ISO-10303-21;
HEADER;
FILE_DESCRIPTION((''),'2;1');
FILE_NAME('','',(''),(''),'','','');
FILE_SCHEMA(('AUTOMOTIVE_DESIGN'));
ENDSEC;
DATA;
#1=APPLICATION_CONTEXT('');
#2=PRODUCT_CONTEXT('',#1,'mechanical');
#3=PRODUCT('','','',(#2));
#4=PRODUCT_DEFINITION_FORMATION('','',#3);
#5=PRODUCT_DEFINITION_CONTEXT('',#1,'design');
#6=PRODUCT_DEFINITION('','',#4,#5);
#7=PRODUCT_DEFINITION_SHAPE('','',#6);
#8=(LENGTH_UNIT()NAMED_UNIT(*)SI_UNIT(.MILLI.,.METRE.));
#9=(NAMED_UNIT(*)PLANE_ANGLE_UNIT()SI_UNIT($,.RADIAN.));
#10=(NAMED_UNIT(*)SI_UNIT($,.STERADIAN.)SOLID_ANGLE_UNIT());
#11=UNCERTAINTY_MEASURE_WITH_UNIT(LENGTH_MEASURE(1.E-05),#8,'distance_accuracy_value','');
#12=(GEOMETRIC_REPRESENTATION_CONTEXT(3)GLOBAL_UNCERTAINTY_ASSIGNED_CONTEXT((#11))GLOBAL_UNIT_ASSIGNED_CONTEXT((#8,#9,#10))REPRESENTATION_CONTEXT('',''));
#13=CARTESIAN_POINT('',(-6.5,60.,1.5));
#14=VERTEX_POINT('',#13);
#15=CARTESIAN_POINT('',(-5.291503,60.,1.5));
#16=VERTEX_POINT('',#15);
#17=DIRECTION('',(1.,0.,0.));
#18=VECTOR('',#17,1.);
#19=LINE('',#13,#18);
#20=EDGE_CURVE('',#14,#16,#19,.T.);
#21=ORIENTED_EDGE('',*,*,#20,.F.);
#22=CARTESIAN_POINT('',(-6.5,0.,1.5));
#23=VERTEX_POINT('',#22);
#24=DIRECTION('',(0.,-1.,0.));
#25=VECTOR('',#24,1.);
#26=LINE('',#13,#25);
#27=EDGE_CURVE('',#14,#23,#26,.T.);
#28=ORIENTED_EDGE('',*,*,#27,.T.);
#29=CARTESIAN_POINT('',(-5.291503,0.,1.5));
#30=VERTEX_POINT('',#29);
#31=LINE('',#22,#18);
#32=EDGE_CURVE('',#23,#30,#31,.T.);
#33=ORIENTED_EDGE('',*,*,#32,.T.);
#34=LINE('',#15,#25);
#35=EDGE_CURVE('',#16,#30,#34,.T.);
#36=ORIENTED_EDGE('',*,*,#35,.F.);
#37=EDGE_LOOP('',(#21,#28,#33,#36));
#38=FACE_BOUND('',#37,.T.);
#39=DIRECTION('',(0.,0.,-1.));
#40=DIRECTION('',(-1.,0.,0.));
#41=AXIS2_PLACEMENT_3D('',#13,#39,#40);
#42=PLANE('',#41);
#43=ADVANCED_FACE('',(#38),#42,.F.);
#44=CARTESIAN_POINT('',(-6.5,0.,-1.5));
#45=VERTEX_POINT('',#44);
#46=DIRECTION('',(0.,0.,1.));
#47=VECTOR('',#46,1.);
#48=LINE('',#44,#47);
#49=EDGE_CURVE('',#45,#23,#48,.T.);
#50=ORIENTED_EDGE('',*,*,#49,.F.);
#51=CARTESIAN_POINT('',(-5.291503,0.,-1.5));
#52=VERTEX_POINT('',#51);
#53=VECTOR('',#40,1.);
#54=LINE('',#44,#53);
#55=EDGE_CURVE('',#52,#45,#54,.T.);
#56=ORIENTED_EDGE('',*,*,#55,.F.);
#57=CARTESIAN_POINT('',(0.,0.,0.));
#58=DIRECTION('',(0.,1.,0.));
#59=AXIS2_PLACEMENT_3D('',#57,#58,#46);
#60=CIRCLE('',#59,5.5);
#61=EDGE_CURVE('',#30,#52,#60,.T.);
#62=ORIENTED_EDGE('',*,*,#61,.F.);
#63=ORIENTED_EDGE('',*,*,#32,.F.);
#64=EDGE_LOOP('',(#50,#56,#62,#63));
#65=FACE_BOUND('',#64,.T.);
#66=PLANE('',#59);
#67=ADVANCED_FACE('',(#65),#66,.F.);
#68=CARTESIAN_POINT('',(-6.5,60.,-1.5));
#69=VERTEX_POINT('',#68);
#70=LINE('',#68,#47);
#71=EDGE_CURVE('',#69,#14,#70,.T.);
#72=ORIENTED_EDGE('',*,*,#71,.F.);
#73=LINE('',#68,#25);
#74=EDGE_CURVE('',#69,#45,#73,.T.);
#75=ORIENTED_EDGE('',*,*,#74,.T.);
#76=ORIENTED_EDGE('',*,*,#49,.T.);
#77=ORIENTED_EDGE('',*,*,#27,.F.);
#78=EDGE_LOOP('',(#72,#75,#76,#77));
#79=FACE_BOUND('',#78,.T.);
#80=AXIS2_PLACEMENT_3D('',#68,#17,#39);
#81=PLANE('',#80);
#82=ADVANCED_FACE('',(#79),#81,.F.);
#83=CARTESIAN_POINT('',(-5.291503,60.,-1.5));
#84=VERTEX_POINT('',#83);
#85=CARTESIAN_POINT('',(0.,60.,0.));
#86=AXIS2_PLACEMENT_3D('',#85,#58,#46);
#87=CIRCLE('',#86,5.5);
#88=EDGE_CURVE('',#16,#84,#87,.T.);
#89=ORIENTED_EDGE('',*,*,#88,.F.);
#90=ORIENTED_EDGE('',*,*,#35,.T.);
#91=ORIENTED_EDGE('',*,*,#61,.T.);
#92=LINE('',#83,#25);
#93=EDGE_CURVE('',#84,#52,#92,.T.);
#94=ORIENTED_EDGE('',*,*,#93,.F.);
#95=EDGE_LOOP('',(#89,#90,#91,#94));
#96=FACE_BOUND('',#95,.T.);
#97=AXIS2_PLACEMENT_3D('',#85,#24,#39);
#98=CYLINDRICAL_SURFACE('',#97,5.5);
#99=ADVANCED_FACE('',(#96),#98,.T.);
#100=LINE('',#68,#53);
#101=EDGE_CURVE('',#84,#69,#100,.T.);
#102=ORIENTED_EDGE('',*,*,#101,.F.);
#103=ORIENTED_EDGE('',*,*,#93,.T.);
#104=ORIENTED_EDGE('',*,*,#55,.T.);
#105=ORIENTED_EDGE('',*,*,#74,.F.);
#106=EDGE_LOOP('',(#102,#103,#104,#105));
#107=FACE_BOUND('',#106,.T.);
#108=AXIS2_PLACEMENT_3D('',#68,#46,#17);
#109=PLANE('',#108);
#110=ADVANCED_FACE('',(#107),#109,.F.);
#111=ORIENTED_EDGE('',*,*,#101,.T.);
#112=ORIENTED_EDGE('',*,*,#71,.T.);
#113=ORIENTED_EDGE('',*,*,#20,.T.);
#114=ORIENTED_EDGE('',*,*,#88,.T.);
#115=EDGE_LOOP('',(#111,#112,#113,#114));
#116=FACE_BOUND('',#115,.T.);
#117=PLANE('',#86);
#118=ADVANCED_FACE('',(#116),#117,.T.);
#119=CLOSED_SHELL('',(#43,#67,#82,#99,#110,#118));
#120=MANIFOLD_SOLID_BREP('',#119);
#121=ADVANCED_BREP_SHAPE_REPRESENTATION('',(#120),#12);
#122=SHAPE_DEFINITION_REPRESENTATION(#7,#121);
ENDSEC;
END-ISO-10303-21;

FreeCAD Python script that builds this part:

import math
import FreeCAD as App
import Part
import Sketcher
from FreeCAD import Vector
Q = App.Units.Quantity

doc = App.newDocument("Part")
body = doc.addObject("PartDesign::Body", "Body")

# Sketch on XZ plane
sketch1 = body.newObject("Sketcher::SketchObject", "Sketch")
sketch1.AttachmentSupport = (doc.getObject("XZ_Plane"), [""])
sketch1.MapMode = "FlatFace"
sketch1.addGeometry(Part.LineSegment(Vector(-5.3, -1.5, 0), Vector(-6.5, -1.5, 0)), False)
sketch1.addGeometry(Part.LineSegment(Vector(-6.5, -1.5, 0), Vector(-6.5, 1.5, 0)), False)
sketch1.addGeometry(Part.LineSegment(Vector(-6.5, 1.5, 0), Vector(-5.3, 1.5, 0)), False)
sketch1.addGeometry(Part.ArcOfCircle(Part.Circle(Vector(0, 0, 0), Vector(0, 0, 1), 5.5), math.radians(-164), math.radians(164)), False)
sketch1.addConstraint(Sketcher.Constraint("Coincident", 0, 2, 1, 1))
sketch1.addConstraint(Sketcher.Constraint("Coincident", 1, 2, 2, 1))
sketch1.addConstraint(Sketcher.Constraint("Coincident", 2, 2, 3, 2))
sketch1.addConstraint(Sketcher.Constraint("Coincident", 3, 1, 0, 1))
sketch1.addConstraint(Sketcher.Constraint("Horizontal", 0))
sketch1.addConstraint(Sketcher.Constraint("Vertical", 1))
sketch1.addConstraint(Sketcher.Constraint("Horizontal", 2))
sketch1.addConstraint(Sketcher.Constraint("Coincident", 3, 3, -1, 1))
sketch1.addConstraint(Sketcher.Constraint("Vertical", 2, 2, 3, 1))
sketch1.addConstraint(Sketcher.Constraint("Radius", 3, Q("5.5 mm")))
sketch1.addConstraint(Sketcher.Constraint("DistanceY", 1, 1, 1, 2, Q("3 mm")))
sketch1.addConstraint(Sketcher.Constraint("DistanceX", 0, 2, -1, 1, Q("6.5 mm")))
pad1 = body.newObject("PartDesign::Pad", "Pad")
pad1.Profile = sketch1
pad1.Length = 60
pad1.Reversed = True

doc.recompute()
